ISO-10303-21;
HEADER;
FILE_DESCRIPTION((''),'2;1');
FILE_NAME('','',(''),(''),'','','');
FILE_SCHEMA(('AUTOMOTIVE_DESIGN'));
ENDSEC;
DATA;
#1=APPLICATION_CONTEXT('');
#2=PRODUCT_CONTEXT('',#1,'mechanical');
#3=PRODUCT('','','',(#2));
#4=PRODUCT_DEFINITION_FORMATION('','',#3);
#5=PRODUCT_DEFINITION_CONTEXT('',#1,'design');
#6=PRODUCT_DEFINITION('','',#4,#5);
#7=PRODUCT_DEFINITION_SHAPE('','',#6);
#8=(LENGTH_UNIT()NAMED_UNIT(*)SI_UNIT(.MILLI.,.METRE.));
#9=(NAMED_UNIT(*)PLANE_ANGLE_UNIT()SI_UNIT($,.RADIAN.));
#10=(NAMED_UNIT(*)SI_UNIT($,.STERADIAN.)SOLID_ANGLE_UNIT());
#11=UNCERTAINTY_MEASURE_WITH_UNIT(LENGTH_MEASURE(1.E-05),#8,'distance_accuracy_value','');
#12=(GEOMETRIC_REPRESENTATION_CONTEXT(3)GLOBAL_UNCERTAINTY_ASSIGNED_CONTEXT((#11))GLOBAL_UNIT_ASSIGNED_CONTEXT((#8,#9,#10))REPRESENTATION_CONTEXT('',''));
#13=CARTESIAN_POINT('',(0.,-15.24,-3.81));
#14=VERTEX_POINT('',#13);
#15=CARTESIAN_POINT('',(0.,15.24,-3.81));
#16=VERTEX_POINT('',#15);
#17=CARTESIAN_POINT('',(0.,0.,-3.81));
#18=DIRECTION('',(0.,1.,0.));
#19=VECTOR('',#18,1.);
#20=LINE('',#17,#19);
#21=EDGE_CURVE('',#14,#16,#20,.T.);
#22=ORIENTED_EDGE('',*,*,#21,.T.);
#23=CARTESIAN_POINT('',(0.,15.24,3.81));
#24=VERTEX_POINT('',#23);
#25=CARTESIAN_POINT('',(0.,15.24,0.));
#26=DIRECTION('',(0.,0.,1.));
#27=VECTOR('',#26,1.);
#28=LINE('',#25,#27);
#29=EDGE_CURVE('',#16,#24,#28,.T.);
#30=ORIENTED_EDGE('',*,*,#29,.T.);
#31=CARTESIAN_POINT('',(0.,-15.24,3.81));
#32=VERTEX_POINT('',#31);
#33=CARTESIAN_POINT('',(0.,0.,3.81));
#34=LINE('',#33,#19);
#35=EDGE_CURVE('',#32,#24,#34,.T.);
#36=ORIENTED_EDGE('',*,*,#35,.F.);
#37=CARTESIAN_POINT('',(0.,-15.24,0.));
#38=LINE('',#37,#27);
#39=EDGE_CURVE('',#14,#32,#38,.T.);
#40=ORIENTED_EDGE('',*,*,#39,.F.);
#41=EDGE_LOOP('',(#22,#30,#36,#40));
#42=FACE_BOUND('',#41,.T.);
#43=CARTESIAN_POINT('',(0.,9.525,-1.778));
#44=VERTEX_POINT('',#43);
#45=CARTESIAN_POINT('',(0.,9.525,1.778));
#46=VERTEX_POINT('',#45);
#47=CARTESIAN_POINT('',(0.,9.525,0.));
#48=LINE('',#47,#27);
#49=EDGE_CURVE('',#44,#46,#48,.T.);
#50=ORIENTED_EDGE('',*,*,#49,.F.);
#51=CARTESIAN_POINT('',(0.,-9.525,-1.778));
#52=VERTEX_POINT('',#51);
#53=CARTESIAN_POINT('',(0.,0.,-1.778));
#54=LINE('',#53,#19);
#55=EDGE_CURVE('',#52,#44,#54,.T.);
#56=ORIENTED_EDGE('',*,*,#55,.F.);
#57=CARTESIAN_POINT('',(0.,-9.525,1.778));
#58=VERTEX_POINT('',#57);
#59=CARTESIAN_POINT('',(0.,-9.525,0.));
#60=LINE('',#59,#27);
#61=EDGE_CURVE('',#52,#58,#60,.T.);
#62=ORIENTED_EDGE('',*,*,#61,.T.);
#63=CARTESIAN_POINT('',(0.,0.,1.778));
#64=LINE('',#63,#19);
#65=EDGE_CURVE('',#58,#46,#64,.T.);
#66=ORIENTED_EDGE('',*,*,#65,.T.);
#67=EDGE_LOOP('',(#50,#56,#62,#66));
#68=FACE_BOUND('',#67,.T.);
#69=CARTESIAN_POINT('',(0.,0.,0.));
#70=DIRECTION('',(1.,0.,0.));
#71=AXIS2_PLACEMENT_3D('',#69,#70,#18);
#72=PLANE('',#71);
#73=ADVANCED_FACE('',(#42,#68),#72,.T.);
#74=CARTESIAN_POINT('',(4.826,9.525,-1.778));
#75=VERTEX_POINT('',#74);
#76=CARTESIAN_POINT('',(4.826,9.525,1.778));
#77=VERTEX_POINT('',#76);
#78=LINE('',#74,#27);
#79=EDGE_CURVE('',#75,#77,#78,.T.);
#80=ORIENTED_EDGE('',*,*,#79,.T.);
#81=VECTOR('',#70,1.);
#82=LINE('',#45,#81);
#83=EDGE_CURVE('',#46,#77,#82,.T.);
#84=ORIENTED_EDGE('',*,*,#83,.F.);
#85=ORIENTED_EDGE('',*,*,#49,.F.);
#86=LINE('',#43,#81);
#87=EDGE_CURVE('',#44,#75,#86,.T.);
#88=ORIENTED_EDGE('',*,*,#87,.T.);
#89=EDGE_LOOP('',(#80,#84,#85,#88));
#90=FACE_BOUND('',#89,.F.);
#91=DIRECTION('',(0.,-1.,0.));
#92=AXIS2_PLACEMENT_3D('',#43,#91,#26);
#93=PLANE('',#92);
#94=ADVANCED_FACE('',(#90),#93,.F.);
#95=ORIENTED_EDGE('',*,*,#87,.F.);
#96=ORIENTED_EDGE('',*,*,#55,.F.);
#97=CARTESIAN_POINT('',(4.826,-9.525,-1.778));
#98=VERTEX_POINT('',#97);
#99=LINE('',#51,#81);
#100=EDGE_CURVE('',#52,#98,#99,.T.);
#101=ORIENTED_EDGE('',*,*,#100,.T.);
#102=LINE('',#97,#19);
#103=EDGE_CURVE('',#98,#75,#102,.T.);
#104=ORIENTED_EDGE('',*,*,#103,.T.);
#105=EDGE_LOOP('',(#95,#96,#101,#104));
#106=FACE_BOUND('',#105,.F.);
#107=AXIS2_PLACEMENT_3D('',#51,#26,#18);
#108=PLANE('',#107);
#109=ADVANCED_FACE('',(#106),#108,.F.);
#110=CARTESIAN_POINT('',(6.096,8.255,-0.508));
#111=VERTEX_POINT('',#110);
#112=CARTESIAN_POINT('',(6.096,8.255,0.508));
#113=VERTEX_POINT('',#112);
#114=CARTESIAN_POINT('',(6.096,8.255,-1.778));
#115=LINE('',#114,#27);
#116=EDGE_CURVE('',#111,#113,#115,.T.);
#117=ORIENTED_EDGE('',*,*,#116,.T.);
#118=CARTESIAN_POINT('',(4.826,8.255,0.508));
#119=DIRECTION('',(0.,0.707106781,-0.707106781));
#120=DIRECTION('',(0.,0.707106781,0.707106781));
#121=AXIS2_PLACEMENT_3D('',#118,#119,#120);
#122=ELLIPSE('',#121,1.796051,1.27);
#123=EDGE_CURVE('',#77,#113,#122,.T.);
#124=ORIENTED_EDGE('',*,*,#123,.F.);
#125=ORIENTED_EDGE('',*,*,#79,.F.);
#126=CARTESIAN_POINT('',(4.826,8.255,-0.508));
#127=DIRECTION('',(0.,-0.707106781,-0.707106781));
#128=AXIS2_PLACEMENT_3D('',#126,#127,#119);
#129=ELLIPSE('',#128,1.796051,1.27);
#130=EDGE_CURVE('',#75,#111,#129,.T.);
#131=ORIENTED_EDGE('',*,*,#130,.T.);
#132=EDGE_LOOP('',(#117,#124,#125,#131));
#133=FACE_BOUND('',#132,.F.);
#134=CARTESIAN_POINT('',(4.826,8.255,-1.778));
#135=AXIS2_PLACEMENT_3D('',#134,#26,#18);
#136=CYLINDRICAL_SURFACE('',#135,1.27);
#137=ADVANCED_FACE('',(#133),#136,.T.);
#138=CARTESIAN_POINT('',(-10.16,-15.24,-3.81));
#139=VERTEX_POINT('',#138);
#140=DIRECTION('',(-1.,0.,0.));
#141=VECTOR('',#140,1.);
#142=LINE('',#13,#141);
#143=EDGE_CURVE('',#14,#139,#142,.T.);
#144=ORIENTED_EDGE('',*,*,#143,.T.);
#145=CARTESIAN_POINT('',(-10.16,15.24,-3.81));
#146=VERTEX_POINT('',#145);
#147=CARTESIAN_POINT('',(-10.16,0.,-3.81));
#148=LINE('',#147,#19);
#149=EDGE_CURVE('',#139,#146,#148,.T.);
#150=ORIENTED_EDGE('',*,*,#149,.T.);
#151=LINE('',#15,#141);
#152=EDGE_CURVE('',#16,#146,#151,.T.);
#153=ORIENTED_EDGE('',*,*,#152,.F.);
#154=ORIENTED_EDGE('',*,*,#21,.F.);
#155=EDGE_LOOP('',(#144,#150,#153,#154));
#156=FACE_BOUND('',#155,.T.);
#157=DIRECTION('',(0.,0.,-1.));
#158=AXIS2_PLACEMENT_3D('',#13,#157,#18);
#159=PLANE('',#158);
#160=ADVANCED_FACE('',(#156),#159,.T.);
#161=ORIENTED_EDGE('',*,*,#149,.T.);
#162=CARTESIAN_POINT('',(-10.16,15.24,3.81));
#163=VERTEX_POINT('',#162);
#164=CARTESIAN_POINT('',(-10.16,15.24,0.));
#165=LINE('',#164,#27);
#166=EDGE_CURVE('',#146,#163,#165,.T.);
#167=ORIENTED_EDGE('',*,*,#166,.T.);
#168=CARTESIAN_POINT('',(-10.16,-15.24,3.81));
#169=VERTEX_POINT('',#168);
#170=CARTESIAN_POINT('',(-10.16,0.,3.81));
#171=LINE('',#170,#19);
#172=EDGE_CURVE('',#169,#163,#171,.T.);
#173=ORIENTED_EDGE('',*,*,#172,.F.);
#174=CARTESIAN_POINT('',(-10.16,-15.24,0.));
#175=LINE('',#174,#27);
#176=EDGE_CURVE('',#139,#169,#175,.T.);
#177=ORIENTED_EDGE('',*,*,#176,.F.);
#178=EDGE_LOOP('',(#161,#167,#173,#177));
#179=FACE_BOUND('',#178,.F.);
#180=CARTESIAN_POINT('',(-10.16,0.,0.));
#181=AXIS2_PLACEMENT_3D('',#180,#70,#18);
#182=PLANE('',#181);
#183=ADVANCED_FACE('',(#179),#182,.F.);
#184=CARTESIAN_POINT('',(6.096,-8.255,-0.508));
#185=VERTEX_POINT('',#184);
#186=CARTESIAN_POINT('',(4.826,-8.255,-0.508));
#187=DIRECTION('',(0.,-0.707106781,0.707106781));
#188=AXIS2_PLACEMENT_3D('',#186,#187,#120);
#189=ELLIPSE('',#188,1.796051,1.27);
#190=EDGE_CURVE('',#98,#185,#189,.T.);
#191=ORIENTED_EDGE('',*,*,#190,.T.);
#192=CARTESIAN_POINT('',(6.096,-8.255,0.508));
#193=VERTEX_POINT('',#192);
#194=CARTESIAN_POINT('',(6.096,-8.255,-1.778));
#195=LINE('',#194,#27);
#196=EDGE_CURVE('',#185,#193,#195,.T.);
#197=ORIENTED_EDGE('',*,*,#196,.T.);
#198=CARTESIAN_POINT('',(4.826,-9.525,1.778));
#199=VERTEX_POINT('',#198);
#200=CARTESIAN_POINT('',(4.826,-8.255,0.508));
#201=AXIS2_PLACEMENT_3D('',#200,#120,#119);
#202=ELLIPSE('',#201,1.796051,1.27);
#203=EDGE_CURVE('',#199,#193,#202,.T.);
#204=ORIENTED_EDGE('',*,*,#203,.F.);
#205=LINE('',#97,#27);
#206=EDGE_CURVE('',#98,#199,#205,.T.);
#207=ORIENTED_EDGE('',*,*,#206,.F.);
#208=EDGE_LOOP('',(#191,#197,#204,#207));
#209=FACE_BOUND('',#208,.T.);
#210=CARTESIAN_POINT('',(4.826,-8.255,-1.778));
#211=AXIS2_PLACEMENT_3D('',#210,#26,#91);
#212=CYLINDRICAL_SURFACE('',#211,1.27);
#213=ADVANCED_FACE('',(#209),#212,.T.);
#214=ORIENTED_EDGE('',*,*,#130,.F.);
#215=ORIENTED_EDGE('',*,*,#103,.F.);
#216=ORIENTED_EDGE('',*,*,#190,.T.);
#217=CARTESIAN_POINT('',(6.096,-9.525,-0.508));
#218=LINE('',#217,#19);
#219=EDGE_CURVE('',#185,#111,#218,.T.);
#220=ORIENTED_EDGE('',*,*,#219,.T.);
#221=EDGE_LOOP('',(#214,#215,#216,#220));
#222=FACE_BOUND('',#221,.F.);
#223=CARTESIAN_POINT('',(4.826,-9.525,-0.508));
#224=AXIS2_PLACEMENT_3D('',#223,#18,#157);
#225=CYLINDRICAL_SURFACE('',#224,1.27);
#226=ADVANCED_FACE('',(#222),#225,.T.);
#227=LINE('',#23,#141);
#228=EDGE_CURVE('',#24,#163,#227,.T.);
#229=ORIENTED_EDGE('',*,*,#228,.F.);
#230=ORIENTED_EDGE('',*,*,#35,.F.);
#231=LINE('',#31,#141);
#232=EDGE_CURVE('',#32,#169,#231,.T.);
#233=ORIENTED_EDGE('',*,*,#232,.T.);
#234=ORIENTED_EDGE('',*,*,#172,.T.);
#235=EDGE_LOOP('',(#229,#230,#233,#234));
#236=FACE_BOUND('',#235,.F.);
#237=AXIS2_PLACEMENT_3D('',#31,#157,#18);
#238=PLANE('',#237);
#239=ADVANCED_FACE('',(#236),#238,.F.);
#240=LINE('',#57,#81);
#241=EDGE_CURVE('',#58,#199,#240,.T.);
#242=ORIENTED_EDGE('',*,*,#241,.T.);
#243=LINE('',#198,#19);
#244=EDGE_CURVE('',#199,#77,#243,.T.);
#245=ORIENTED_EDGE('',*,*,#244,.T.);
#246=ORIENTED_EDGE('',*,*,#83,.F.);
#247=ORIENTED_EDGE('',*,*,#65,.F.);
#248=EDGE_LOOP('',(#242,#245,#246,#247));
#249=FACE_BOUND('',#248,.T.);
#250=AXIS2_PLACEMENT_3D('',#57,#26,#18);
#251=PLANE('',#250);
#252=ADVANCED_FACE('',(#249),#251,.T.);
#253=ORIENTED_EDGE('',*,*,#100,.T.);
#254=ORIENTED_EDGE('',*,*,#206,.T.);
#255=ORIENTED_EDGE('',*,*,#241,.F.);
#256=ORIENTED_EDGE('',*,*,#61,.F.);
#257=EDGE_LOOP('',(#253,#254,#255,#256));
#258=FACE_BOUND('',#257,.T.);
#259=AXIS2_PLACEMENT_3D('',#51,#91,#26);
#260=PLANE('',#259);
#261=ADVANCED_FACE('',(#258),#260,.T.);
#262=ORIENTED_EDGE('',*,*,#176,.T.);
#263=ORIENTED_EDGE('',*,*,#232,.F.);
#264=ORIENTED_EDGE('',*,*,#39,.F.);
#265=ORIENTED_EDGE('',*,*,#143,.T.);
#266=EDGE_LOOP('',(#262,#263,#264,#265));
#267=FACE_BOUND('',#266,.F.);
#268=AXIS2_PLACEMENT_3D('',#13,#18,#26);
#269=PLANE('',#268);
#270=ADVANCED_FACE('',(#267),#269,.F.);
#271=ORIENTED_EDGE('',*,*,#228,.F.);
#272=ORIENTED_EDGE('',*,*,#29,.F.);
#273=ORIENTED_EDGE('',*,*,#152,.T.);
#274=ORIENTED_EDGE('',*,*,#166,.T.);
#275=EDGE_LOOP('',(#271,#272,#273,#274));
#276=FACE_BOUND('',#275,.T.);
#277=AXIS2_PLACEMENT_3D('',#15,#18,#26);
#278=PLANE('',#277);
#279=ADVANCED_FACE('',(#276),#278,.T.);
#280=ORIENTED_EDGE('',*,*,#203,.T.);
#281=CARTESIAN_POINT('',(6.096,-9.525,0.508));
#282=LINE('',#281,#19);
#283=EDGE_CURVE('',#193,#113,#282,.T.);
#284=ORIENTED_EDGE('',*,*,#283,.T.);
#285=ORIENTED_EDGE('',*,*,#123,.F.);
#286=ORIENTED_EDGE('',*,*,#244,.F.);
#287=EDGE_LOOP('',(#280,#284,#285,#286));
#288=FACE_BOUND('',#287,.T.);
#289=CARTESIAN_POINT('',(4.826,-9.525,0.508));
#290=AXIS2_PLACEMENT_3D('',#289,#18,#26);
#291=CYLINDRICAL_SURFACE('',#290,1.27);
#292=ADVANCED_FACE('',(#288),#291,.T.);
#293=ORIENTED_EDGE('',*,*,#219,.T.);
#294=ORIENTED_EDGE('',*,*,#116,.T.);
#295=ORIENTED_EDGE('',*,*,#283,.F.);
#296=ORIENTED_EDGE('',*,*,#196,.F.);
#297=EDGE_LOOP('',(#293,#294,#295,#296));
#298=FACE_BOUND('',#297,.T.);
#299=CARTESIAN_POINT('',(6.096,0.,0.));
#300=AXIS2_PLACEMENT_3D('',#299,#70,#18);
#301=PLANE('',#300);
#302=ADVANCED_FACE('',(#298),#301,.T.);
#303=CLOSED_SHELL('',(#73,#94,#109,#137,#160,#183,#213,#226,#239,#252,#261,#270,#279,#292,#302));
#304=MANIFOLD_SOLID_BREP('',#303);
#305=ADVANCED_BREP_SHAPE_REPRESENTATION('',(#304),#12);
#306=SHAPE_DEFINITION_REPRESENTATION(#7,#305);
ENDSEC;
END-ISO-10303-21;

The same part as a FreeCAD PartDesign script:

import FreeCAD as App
import Part
import Sketcher
from FreeCAD import Vector
Q = App.Units.Quantity


def edges_at(feature, points):
    """Names of the edges that pass closest to the given points."""
    edges = feature.Shape.Edges
    near = lambda p: min(range(len(edges)), key=lambda i: edges[i].distToShape(Part.Vertex(*p))[0])
    return sorted({f"Edge{near(p) + 1}" for p in points})


def add_polygon(sketch, points):
    """Adds a closed chain of lines whose ends are joined by coincident constraints."""
    first, n = sketch.GeometryCount, len(points)
    for a, b in zip(points, points[1:] + points[:1]):
        sketch.addGeometry(Part.LineSegment(App.Vector(*a, 0), App.Vector(*b, 0)), False)
    for i in range(n):
        sketch.addConstraint(Sketcher.Constraint("Coincident", first + i, 2, first + (i + 1) % n, 1))

doc = App.newDocument("Part")
body = doc.addObject("PartDesign::Body", "Body")

sketch1 = body.newObject("Sketcher::SketchObject", "Sketch")
sketch1.AttachmentSupport = (doc.getObject("YZ_Plane"), [""])
sketch1.MapMode = "FlatFace"
add_polygon(sketch1, [(-15, 4), (-15, -4), (15, -4), (15, 4)])
sketch1.addConstraint([
    Sketcher.Constraint("Vertical", 0),
    Sketcher.Constraint("Horizontal", 1),
    Sketcher.Constraint("Vertical", 2),
    Sketcher.Constraint("Horizontal", 3),
    Sketcher.Constraint("Symmetric", 0, 2, 2, 2, -1, 1),
    Sketcher.Constraint("DistanceX", 1, 1, 1, 2, Q("1.2 in")),
    Sketcher.Constraint("DistanceY", 0, 2, 0, 1, Q("0.3 in")),
])
pad1 = body.newObject("PartDesign::Pad", "Pad")
pad1.Profile = sketch1
pad1.Length = Q("0.4 in")
pad1.Reversed = True

sketch2 = body.newObject("Sketcher::SketchObject", "Sketch001")
sketch2.AttachmentSupport = (doc.getObject("YZ_Plane"), [""])
sketch2.MapMode = "FlatFace"
add_polygon(sketch2, [(-9.5, 1.8), (-9.5, -1.8), (9.5, -1.8), (9.5, 1.8)])
sketch2.addConstraint([
    Sketcher.Constraint("Vertical", 0),
    Sketcher.Constraint("Horizontal", 1),
    Sketcher.Constraint("Vertical", 2),
    Sketcher.Constraint("Horizontal", 3),
    Sketcher.Constraint("Symmetric", 0, 2, 2, 2, -1, 1),
    Sketcher.Constraint("DistanceX", 1, 1, 1, 2, Q("0.75 in")),
    Sketcher.Constraint("DistanceY", 0, 2, 0, 1, Q("0.14 in")),
])
pad2 = body.newObject("PartDesign::Pad", "Pad001")
pad2.Profile = sketch2
pad2.Length = Q("0.24 in")
doc.recompute()

fillet = body.newObject("PartDesign::Fillet", "Fillet")
fillet.Base = (pad2, edges_at(pad2, [
    (6.096, 0, 1.778),
    (6.096, -9.525, 0),
    (6.096, 0, -1.778),
    (6.096, 9.525, 0),
]))
fillet.Radius = Q("0.05 in")

doc.recompute()
